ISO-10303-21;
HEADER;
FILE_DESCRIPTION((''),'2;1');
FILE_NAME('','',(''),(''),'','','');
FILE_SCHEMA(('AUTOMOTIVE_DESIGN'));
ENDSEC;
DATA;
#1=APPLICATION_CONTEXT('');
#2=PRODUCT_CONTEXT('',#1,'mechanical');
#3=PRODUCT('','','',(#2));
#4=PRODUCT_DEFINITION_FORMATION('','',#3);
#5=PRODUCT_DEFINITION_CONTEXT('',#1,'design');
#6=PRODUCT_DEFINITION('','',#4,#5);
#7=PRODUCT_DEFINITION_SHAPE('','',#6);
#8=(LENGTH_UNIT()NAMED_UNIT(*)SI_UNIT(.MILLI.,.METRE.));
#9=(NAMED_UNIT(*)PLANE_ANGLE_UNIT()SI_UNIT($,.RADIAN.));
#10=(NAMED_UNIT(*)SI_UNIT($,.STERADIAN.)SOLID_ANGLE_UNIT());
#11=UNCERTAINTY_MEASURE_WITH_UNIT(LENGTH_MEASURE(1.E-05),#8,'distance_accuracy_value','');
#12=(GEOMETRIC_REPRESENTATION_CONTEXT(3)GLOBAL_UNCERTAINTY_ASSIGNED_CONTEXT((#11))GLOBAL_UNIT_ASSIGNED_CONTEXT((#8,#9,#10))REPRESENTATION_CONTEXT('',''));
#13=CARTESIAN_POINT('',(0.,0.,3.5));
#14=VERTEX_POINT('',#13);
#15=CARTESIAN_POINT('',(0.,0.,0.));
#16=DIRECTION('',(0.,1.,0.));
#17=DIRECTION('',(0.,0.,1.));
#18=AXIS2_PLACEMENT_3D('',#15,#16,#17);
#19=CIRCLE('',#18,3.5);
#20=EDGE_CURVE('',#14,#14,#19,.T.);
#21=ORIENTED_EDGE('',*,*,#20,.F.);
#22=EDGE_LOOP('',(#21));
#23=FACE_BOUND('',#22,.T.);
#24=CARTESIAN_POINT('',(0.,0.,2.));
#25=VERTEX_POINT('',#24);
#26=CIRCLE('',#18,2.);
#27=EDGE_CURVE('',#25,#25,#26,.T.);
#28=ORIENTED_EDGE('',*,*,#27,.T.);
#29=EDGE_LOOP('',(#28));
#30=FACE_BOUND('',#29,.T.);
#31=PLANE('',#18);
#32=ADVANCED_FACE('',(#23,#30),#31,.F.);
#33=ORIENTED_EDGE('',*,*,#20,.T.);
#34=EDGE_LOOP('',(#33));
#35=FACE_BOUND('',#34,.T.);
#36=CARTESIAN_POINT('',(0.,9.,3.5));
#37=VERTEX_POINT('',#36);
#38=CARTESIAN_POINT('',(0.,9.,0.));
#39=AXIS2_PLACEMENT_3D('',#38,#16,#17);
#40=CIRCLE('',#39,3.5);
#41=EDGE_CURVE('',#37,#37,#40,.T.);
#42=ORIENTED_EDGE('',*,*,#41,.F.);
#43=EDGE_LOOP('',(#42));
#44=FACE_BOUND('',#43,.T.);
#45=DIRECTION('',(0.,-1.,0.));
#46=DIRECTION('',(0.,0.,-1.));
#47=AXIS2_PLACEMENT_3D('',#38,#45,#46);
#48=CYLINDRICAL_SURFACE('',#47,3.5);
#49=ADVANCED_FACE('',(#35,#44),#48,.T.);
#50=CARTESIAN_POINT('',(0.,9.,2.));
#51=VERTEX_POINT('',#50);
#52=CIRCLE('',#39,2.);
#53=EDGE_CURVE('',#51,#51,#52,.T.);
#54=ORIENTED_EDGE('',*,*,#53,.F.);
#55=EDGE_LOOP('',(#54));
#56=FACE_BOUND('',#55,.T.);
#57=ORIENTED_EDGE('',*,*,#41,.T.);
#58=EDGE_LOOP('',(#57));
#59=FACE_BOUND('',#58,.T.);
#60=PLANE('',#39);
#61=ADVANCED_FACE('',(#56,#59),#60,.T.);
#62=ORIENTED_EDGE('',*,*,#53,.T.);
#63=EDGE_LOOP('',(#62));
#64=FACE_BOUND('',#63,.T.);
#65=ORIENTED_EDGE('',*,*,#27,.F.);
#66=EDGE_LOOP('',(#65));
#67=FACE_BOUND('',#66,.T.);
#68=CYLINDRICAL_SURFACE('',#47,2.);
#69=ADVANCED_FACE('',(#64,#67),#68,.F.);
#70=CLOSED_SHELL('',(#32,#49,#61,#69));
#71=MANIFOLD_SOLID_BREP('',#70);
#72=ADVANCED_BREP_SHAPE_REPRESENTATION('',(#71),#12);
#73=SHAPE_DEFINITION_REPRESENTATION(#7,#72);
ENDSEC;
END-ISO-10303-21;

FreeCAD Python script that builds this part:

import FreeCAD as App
import Part
import Sketcher

V = App.Vector
Q = App.Units.Quantity

doc = App.newDocument("Part")
params = doc.addObject("Spreadsheet::Sheet", "Params")
for row, (alias, value) in enumerate([
    ("sketch1_diameter", "7 mm"),
    ("sketch1_diameter2", "4 mm"),
    ("pad1_length", "9 mm"),
], start=1):
    params.set(f"A{row}", alias)
    params.set(f"B{row}", "=" + value)
    params.setAlias(f"B{row}", alias)

body = doc.addObject("PartDesign::Body", "Body")

# Sketch on XZ plane
sketch1 = doc.addObject("Sketcher::SketchObject", "Sketch")
body.addObject(sketch1)
sketch1.AttachmentSupport = (doc.XZ_Plane, [""])
sketch1.MapMode = "FlatFace"
sketch1.addGeometry([
    Part.Circle(V(0, 0, 0), V(0, 0, 1), 3.5),
    Part.Circle(V(0, 0, 0), V(0, 0, 1), 2),
], False)
sketch1.addConstraint([
    Sketcher.Constraint("Coincident", 0, 3, -1, 1),
    Sketcher.Constraint("Coincident", 1, 3, -1, 1),
    Sketcher.Constraint("Diameter", 0, Q("7 mm")),
    Sketcher.Constraint("Diameter", 1, Q("4 mm")),
])
sketch1.setExpression("Constraints[2]", "Params.sketch1_diameter")
sketch1.setExpression("Constraints[3]", "Params.sketch1_diameter2")
pad1 = doc.addObject("PartDesign::Pad", "Pad")
body.addObject(pad1)
pad1.Profile = sketch1
pad1.setExpression("Length", "Params.pad1_length")
pad1.Reversed = True

doc.recompute()
